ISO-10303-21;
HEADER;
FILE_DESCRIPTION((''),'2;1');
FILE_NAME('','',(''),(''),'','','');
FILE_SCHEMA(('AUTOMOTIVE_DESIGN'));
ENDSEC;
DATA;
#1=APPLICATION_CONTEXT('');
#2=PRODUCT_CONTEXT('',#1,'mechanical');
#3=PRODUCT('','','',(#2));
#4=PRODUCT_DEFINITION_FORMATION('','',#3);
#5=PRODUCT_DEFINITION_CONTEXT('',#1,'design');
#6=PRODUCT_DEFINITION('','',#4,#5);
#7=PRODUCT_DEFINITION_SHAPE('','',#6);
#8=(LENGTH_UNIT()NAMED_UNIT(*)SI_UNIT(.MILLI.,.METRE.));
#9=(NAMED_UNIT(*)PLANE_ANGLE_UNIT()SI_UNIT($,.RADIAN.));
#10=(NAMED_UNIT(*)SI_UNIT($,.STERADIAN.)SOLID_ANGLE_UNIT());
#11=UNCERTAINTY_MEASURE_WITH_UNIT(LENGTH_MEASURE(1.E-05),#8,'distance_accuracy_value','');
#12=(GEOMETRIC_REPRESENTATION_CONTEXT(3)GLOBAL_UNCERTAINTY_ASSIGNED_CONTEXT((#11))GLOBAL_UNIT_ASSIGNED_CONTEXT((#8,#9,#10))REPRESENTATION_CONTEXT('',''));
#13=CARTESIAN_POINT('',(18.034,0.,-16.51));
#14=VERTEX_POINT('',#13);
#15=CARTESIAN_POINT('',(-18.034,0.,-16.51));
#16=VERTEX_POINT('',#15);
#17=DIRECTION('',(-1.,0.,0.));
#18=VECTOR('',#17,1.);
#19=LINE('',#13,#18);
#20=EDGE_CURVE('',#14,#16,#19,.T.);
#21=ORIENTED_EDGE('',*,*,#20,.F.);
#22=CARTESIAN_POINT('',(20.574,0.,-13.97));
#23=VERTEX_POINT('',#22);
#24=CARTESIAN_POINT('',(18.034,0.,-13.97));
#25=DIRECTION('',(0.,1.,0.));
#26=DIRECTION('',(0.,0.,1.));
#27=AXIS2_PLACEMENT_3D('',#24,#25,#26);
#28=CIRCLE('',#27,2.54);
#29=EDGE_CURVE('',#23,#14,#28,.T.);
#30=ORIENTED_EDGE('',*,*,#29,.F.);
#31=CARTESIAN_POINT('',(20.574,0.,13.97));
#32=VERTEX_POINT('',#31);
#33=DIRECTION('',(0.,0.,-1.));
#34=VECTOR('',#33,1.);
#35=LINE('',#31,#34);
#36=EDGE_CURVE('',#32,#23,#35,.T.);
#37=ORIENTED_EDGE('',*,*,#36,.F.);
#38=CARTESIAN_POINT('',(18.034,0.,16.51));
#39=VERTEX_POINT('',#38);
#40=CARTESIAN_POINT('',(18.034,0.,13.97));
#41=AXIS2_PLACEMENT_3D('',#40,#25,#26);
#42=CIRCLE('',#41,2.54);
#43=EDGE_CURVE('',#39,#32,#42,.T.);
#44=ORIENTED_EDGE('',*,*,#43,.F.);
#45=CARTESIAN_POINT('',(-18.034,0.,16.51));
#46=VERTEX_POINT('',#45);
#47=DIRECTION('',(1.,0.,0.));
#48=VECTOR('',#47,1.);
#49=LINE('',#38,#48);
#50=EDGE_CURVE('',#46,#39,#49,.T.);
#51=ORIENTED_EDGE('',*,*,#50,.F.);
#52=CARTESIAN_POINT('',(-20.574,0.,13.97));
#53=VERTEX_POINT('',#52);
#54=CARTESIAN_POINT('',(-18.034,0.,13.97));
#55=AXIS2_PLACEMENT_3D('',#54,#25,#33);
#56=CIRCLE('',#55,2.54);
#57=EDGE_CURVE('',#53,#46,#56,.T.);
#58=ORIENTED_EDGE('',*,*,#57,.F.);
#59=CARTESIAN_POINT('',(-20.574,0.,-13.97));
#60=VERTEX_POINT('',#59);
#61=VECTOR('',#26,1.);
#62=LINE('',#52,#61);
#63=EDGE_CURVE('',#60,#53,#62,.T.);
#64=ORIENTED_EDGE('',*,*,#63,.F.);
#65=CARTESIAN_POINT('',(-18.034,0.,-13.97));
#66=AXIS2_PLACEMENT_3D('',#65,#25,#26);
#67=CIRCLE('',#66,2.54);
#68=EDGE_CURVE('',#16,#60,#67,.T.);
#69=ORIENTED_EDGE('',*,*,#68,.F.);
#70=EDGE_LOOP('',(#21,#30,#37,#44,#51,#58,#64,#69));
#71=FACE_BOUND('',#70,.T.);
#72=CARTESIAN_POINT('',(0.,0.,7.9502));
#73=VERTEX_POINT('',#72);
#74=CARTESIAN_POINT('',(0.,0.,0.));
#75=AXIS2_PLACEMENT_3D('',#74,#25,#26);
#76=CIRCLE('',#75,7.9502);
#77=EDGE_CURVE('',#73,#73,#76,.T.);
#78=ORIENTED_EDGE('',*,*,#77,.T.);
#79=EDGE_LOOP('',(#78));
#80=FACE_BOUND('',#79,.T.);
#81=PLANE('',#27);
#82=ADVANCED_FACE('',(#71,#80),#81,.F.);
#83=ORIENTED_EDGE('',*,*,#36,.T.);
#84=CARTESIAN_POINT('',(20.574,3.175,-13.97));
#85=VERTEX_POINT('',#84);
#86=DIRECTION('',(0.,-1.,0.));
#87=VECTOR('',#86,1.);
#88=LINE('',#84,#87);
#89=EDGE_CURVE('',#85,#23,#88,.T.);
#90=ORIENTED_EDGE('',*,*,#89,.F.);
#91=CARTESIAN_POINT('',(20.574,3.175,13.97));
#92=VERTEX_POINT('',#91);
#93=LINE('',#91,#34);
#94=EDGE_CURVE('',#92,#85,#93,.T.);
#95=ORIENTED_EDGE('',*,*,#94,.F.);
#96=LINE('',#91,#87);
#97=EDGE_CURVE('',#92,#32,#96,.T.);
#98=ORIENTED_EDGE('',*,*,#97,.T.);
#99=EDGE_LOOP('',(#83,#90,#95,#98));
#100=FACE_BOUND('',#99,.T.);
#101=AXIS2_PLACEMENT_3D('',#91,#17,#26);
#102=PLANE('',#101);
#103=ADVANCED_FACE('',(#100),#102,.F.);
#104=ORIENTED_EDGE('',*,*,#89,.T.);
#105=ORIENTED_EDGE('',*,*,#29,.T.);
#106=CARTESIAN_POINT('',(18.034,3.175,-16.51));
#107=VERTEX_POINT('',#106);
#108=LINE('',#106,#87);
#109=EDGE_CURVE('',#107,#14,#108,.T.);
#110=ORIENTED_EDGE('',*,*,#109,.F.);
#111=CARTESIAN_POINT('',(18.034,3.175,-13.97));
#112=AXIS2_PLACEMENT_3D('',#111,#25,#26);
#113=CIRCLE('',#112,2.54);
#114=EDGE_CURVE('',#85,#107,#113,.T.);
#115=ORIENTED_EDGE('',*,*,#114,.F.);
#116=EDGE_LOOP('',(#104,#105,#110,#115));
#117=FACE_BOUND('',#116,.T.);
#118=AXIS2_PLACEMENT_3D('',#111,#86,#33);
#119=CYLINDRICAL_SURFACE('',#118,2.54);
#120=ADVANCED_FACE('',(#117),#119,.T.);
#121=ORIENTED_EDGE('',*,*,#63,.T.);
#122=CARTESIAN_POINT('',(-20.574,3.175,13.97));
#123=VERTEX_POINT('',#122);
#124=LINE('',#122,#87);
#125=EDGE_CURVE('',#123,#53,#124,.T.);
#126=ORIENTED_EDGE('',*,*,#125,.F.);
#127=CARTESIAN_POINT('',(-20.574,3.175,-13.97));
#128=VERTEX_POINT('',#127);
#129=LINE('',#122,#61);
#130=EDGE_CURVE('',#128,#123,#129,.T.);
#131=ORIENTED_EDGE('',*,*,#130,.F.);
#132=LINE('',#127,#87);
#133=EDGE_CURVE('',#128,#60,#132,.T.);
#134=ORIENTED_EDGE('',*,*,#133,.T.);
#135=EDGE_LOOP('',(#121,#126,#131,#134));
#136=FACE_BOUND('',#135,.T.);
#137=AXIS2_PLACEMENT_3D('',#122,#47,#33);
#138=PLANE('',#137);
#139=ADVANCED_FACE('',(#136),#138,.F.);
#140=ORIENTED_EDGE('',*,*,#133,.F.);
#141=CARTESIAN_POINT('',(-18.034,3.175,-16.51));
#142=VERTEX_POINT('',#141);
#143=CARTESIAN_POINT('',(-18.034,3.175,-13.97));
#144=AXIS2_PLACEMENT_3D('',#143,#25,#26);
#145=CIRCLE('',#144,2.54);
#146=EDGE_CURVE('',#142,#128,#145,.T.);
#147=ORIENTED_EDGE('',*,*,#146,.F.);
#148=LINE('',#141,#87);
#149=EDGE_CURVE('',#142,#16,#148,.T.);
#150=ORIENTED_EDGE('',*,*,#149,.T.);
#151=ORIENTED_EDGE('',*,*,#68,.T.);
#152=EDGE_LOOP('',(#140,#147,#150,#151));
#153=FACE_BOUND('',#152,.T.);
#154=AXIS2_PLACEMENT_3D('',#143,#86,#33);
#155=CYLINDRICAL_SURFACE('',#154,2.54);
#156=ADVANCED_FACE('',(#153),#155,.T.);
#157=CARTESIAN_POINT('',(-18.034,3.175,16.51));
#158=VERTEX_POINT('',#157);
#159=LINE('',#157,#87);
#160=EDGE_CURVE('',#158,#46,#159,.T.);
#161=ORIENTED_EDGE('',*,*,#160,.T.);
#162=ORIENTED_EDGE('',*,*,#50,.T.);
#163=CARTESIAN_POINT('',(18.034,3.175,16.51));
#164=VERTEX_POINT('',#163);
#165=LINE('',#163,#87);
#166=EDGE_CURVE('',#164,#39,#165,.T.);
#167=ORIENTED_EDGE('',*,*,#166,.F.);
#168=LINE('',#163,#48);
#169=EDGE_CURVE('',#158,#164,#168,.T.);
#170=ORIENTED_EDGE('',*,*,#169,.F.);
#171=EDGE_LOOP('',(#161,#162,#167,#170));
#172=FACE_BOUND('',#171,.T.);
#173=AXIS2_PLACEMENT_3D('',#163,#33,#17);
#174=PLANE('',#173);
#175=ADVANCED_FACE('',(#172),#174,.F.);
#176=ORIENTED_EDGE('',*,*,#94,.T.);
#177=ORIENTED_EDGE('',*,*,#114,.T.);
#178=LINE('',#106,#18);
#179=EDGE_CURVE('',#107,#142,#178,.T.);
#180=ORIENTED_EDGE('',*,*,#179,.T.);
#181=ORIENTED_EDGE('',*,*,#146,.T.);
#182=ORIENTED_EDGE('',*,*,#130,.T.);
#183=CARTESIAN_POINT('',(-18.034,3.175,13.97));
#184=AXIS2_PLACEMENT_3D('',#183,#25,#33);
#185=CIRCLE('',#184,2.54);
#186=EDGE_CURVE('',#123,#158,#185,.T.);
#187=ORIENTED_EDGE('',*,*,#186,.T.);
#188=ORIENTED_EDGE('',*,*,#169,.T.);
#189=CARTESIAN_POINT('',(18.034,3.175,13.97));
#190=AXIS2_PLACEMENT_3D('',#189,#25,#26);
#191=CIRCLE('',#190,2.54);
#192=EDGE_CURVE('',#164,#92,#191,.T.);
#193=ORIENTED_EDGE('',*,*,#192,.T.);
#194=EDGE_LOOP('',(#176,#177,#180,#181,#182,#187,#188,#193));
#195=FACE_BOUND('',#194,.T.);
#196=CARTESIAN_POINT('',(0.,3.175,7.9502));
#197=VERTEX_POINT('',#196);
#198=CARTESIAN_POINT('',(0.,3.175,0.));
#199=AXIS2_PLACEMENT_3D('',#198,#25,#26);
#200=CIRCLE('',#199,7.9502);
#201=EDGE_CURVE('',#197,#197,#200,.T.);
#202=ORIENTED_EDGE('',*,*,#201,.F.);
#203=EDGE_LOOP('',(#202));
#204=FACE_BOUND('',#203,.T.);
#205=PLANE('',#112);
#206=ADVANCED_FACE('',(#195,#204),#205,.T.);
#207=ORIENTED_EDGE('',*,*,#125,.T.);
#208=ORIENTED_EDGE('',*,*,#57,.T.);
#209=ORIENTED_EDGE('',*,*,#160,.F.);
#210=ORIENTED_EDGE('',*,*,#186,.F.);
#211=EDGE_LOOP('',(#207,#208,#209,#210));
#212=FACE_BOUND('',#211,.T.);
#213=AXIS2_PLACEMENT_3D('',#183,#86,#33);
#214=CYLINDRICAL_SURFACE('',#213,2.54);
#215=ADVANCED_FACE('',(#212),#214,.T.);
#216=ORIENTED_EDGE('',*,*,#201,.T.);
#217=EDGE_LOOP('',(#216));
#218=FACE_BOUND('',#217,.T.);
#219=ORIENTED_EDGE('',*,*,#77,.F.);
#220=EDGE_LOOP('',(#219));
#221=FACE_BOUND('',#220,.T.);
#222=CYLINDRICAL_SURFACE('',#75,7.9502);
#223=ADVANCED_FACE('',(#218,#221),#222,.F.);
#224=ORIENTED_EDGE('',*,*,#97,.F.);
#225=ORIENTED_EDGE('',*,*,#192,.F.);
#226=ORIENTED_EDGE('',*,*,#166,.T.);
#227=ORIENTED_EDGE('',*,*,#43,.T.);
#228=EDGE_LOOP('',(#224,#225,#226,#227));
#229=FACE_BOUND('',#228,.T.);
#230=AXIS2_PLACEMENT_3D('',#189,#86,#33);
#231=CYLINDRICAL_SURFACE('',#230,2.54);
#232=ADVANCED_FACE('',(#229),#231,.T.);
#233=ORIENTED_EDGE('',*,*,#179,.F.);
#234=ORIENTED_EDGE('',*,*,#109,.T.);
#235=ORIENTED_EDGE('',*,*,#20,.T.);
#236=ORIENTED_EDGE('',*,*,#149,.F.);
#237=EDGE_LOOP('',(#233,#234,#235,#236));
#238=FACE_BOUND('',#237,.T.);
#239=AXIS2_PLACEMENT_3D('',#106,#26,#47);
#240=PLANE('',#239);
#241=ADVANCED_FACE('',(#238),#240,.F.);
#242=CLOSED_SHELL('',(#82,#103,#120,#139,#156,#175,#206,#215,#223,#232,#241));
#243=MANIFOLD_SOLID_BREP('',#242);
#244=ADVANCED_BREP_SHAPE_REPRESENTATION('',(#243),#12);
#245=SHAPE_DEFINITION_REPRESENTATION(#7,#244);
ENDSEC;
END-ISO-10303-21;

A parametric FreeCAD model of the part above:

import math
import FreeCAD as App
import Part
import Sketcher

V = App.Vector
Q = App.Units.Quantity

doc = App.newDocument("Part")
body = doc.addObject("PartDesign::Body", "Body")

# Sketch on XZ plane
sketch1 = body.newObject("Sketcher::SketchObject", "Sketch")
sketch1.AttachmentSupport = (doc.getObject("XZ_Plane"), [""])
sketch1.MapMode = "FlatFace"
sketch1.addGeometry([
    Part.LineSegment(V(-18, 16.5, 0), V(18, 16.5, 0)),  # 0
    Part.ArcOfCircle(Part.Circle(V(18, 14, 0), V(0, 0, 1), 2.5), math.radians(0), math.radians(90)),  # 1
    Part.LineSegment(V(20.6, 14, 0), V(20.6, -14, 0)),  # 2
    Part.ArcOfCircle(Part.Circle(V(18, -14, 0), V(0, 0, 1), 2.5), math.radians(-90), math.radians(0)),  # 3
    Part.LineSegment(V(18, -16.5, 0), V(-18, -16.5, 0)),  # 4
    Part.ArcOfCircle(Part.Circle(V(-18, -14, 0), V(0, 0, 1), 2.5), math.radians(-180), math.radians(-90)),  # 5
    Part.LineSegment(V(-20.6, -14, 0), V(-20.6, 14, 0)),  # 6
    Part.ArcOfCircle(Part.Circle(V(-18, 14, 0), V(0, 0, 1), 2.5), math.radians(90), math.radians(180)),  # 7
], False)
sketch1.addConstraint([
    Sketcher.Constraint("Tangent", 0, 2, 1, 2),
    Sketcher.Constraint("Tangent", 1, 1, 2, 1),
    Sketcher.Constraint("Tangent", 2, 2, 3, 2),
    Sketcher.Constraint("Tangent", 3, 1, 4, 1),
    Sketcher.Constraint("Tangent", 4, 2, 5, 2),
    Sketcher.Constraint("Tangent", 5, 1, 6, 1),
    Sketcher.Constraint("Tangent", 6, 2, 7, 2),
    Sketcher.Constraint("Tangent", 7, 1, 0, 1),
    Sketcher.Constraint("Horizontal", 0),
    Sketcher.Constraint("Vertical", 2),
    Sketcher.Constraint("Horizontal", 4),
    Sketcher.Constraint("Vertical", 6),
    Sketcher.Constraint("Equal", 1, 3),
    Sketcher.Constraint("Equal", 3, 5),
    Sketcher.Constraint("Equal", 5, 7),
    Sketcher.Constraint("Symmetric", 1, 3, 5, 3, -1, 1),
    Sketcher.Constraint("Radius", 1, Q("0.1 in")),
    Sketcher.Constraint("DistanceY", 2, 2, 2, 1, Q("1.1 in")),
    Sketcher.Constraint("DistanceX", 0, 1, 0, 2, Q("1.42 in")),
])
pad1 = body.newObject("PartDesign::Pad", "Pad")
pad1.Profile = sketch1
pad1.Length = Q("0.125 in")
pad1.Reversed = True

# Sketch on XZ plane
sketch2 = body.newObject("Sketcher::SketchObject", "Sketch001")
sketch2.AttachmentSupport = (doc.getObject("XZ_Plane"), [""])
sketch2.MapMode = "FlatFace"
sketch2.AttachmentOffset = App.Placement(V(0, 0, -0.125 * 25.4), App.Rotation())
sketch2.addGeometry(Part.Circle(V(0, 0, 0), V(0, 0, 1), 8), False)
sketch2.addConstraint([
    Sketcher.Constraint("Coincident", 0, 3, -1, 1),
    Sketcher.Constraint("Diameter", 0, Q("0.626 in")),
])
pocket1 = body.newObject("PartDesign::Pocket", "Pocket")
pocket1.Profile = sketch2
pocket1.Type = "ThroughAll"
pocket1.Reversed = True

doc.recompute()
